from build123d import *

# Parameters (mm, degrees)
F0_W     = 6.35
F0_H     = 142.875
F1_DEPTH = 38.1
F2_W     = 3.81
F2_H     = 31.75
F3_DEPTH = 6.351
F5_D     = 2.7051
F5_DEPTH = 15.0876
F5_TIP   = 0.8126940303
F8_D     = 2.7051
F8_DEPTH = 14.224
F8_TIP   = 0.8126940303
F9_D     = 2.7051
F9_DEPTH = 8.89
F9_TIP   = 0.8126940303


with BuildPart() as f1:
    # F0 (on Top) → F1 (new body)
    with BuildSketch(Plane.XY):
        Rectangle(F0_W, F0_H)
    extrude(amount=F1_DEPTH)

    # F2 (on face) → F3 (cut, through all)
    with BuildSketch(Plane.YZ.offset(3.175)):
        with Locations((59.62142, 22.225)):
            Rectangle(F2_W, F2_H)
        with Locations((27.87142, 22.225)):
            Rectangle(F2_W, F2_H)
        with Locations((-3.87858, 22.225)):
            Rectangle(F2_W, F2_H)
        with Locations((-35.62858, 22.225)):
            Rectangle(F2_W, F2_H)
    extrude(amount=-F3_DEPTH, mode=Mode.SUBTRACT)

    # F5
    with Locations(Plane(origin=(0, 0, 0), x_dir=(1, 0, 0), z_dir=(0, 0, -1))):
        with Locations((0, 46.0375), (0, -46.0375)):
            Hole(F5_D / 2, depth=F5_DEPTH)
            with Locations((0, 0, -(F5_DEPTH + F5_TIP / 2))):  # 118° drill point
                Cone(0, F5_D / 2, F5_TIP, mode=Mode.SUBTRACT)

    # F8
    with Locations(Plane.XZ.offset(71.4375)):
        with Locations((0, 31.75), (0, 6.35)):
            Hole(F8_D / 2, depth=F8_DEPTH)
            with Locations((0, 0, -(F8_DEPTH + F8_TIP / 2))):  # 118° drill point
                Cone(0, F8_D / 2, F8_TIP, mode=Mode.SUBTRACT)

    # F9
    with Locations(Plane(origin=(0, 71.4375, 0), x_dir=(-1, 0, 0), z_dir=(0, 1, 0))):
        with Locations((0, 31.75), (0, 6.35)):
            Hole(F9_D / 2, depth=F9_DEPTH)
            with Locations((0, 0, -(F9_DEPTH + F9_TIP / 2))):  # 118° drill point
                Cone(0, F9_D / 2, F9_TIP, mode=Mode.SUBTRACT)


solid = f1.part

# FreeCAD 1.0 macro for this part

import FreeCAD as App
import Part
import Sketcher
Q = App.Units.Quantity

doc = App.newDocument("Part")
body = doc.addObject("PartDesign::Body", "Body")

sketch1 = body.newObject("Sketcher::SketchObject", "Sketch")
sketch1.AttachmentSupport = (doc.getObject("XY_Plane"), [""])
sketch1.MapMode = "FlatFace"
sketch1.addGeometry(Part.LineSegment(App.Vector(-3, 71, 0), App.Vector(-3, -71, 0)), False)
sketch1.addGeometry(Part.LineSegment(App.Vector(-3, -71, 0), App.Vector(3, -71, 0)), False)
sketch1.addGeometry(Part.LineSegment(App.Vector(3, -71, 0), App.Vector(3, 71, 0)), False)
sketch1.addGeometry(Part.LineSegment(App.Vector(3, 71, 0), App.Vector(-3, 71, 0)), False)
sketch1.addConstraint(Sketcher.Constraint("Coincident", 0, 2, 1, 1))
sketch1.addConstraint(Sketcher.Constraint("Coincident", 1, 2, 2, 1))
sketch1.addConstraint(Sketcher.Constraint("Coincident", 2, 2, 3, 1))
sketch1.addConstraint(Sketcher.Constraint("Coincident", 3, 2, 0, 1))
sketch1.addConstraint(Sketcher.Constraint("Vertical", 0))
sketch1.addConstraint(Sketcher.Constraint("Horizontal", 1))
sketch1.addConstraint(Sketcher.Constraint("Vertical", 2))
sketch1.addConstraint(Sketcher.Constraint("Horizontal", 3))
sketch1.addConstraint(Sketcher.Constraint("Symmetric", 0, 2, 2, 2, -1, 1))
sketch1.addConstraint(Sketcher.Constraint("DistanceX", 1, 1, 1, 2, Q("0.25 in")))
sketch1.addConstraint(Sketcher.Constraint("DistanceY", 0, 2, 0, 1, Q("5.625 in")))
pad1 = body.newObject("PartDesign::Pad", "Pad")
pad1.Profile = sketch1
pad1.Length = Q("1.5 in")

sketch2 = body.newObject("Sketcher::SketchObject", "Sketch001")
sketch2.AttachmentSupport = (doc.getObject("YZ_Plane"), [""])
sketch2.MapMode = "FlatFace"
sketch2.AttachmentOffset = App.Placement(App.Vector(0, 0, 0.125 * 25.4), App.Rotation())
sketch2.addGeometry(Part.LineSegment(App.Vector(57.7, 38.1, 0), App.Vector(57.7, 6.3, 0)), False)
sketch2.addGeometry(Part.LineSegment(App.Vector(57.7, 6.3, 0), App.Vector(61.5, 6.3, 0)), False)
sketch2.addGeometry(Part.LineSegment(App.Vector(61.5, 6.3, 0), App.Vector(61.5, 38.1, 0)), False)
sketch2.addGeometry(Part.LineSegment(App.Vector(61.5, 38.1, 0), App.Vector(57.7, 38.1, 0)), False)
sketch2.addGeometry(Part.LineSegment(App.Vector(26, 38.1, 0), App.Vector(26, 6.3, 0)), False)
sketch2.addGeometry(Part.LineSegment(App.Vector(26, 6.3, 0), App.Vector(29.8, 6.3, 0)), False)
sketch2.addGeometry(Part.LineSegment(App.Vector(29.8, 6.3, 0), App.Vector(29.8, 38.1, 0)), False)
sketch2.addGeometry(Part.LineSegment(App.Vector(29.8, 38.1, 0), App.Vector(26, 38.1, 0)), False)
sketch2.addGeometry(Part.LineSegment(App.Vector(-5.8, 38.1, 0), App.Vector(-5.8, 6.3, 0)), False)
sketch2.addGeometry(Part.LineSegment(App.Vector(-5.8, 6.3, 0), App.Vector(-2, 6.3, 0)), False)
sketch2.addGeometry(Part.LineSegment(App.Vector(-2, 6.3, 0), App.Vector(-2, 38.1, 0)), False)
sketch2.addGeometry(Part.LineSegment(App.Vector(-2, 38.1, 0), App.Vector(-5.8, 38.1, 0)), False)
sketch2.addGeometry(Part.LineSegment(App.Vector(-37.5, 38.1, 0), App.Vector(-37.5, 6.3, 0)), False)
sketch2.addGeometry(Part.LineSegment(App.Vector(-37.5, 6.3, 0), App.Vector(-33.7, 6.3, 0)), False)
sketch2.addGeometry(Part.LineSegment(App.Vector(-33.7, 6.3, 0), App.Vector(-33.7, 38.1, 0)), False)
sketch2.addGeometry(Part.LineSegment(App.Vector(-33.7, 38.1, 0), App.Vector(-37.5, 38.1, 0)), False)
sketch2.addConstraint(Sketcher.Constraint("Coincident", 0, 2, 1, 1))
sketch2.addConstraint(Sketcher.Constraint("Coincident", 1, 2, 2, 1))
sketch2.addConstraint(Sketcher.Constraint("Coincident", 2, 2, 3, 1))
sketch2.addConstraint(Sketcher.Constraint("Coincident", 3, 2, 0, 1))
sketch2.addConstraint(Sketcher.Constraint("Coincident", 4, 2, 5, 1))
sketch2.addConstraint(Sketcher.Constraint("Coincident", 5, 2, 6, 1))
sketch2.addConstraint(Sketcher.Constraint("Coincident", 6, 2, 7, 1))
sketch2.addConstraint(Sketcher.Constraint("Coincident", 7, 2, 4, 1))
sketch2.addConstraint(Sketcher.Constraint("Coincident", 8, 2, 9, 1))
sketch2.addConstraint(Sketcher.Constraint("Coincident", 9, 2, 10, 1))
sketch2.addConstraint(Sketcher.Constraint("Coincident", 10, 2, 11, 1))
sketch2.addConstraint(Sketcher.Constraint("Coincident", 11, 2, 8, 1))
sketch2.addConstraint(Sketcher.Constraint("Coincident", 12, 2, 13, 1))
sketch2.addConstraint(Sketcher.Constraint("Coincident", 13, 2, 14, 1))
sketch2.addConstraint(Sketcher.Constraint("Coincident", 14, 2, 15, 1))
sketch2.addConstraint(Sketcher.Constraint("Coincident", 15, 2, 12, 1))
sketch2.addConstraint(Sketcher.Constraint("Vertical", 0))
sketch2.addConstraint(Sketcher.Constraint("Horizontal", 1))
sketch2.addConstraint(Sketcher.Constraint("Vertical", 2))
sketch2.addConstraint(Sketcher.Constraint("Horizontal", 3))
sketch2.addConstraint(Sketcher.Constraint("Vertical", 4))
sketch2.addConstraint(Sketcher.Constraint("Horizontal", 5))
sketch2.addConstraint(Sketcher.Constraint("Vertical", 6))
sketch2.addConstraint(Sketcher.Constraint("Horizontal", 7))
sketch2.addConstraint(Sketcher.Constraint("Vertical", 8))
sketch2.addConstraint(Sketcher.Constraint("Horizontal", 9))
sketch2.addConstraint(Sketcher.Constraint("Vertical", 10))
sketch2.addConstraint(Sketcher.Constraint("Horizontal", 11))
sketch2.addConstraint(Sketcher.Constraint("Vertical", 12))
sketch2.addConstraint(Sketcher.Constraint("Horizontal", 13))
sketch2.addConstraint(Sketcher.Constraint("Vertical", 14))
sketch2.addConstraint(Sketcher.Constraint("Horizontal", 15))
sketch2.addConstraint(Sketcher.Constraint("Horizontal", 1, 2, 4, 2))
sketch2.addConstraint(Sketcher.Constraint("Horizontal", 3, 2, 6, 2))
sketch2.addConstraint(Sketcher.Constraint("Horizontal", 5, 2, 8, 2))
sketch2.addConstraint(Sketcher.Constraint("Horizontal", 7, 2, 10, 2))
sketch2.addConstraint(Sketcher.Constraint("Horizontal", 9, 2, 12, 2))
sketch2.addConstraint(Sketcher.Constraint("Horizontal", 11, 2, 14, 2))
sketch2.addConstraint(Sketcher.Constraint("Equal", 3, 5))
sketch2.addConstraint(Sketcher.Constraint("Equal", 7, 9))
sketch2.addConstraint(Sketcher.Constraint("Equal", 11, 13))
sketch2.addConstraint(Sketcher.Constraint("DistanceX", 1, 1, 1, 2, Q("0.15 in")))
sketch2.addConstraint(Sketcher.Constraint("DistanceY", 0, 2, 0, 1, Q("1.25 in")))
sketch2.addConstraint(Sketcher.Constraint("DistanceY", -1, 1, 2, 2, Q("1.5 in")))
sketch2.addConstraint(Sketcher.Constraint("DistanceX", 4, 2, 1, 2, Q("1.4 in")))
sketch2.addConstraint(Sketcher.Constraint("DistanceX", 8, 2, 5, 2, Q("1.4 in")))
sketch2.addConstraint(Sketcher.Constraint("DistanceX", 12, 2, 9, 2, Q("1.4 in")))
sketch2.addConstraint(Sketcher.Constraint("DistanceX", -1, 1, 0, 2, Q("2.2723 in")))
pocket1 = body.newObject("PartDesign::Pocket", "Pocket")
pocket1.Profile = sketch2
pocket1.Type = "ThroughAll"

sketch3 = body.newObject("Sketcher::SketchObject", "Sketch002")
sketch3.AttachmentSupport = (doc.getObject("XY_Plane"), [""])
sketch3.MapMode = "FlatFace"
sketch3.addGeometry(Part.Circle(App.Vector(0, -46, 0), App.Vector(0, 0, 1), 1.4), False)
sketch3.addGeometry(Part.Circle(App.Vector(0, 46, 0), App.Vector(0, 0, 1), 1.4), False)
sketch3.addConstraint(Sketcher.Constraint("Equal", 0, 1))
sketch3.addConstraint(Sketcher.Constraint("Symmetric", 0, 3, 1, 3, -1, 1))
sketch3.addConstraint(Sketcher.Constraint("PointOnObject", 0, 3, -2))
sketch3.addConstraint(Sketcher.Constraint("Diameter", 0, Q("0.1065 in")))
sketch3.addConstraint(Sketcher.Constraint("DistanceY", 0, 3, -1, 1, Q("1.8125 in")))
doc.recompute()
hole = body.newObject("PartDesign::Hole", "Hole")
hole.Profile = sketch3
hole.ThreadType = "None"
hole.Diameter = Q("0.1065 in")
hole.DepthType = "Dimension"
hole.Depth = Q("0.594 in")
hole.DrillPoint = "Angled"
hole.DrillPointAngle = 118
hole.Reversed = True

sketch4 = body.newObject("Sketcher::SketchObject", "Sketch003")
sketch4.AttachmentSupport = (doc.getObject("XZ_Plane"), [""])
sketch4.MapMode = "FlatFace"
sketch4.AttachmentOffset = App.Placement(App.Vector(0, 0, 2.8125 * 25.4), App.Rotation())
sketch4.addGeometry(Part.Circle(App.Vector(0, 31.8, 0), App.Vector(0, 0, 1), 1.4), False)
sketch4.addGeometry(Part.Circle(App.Vector(0, 6.3, 0), App.Vector(0, 0, 1), 1.4), False)
sketch4.addConstraint(Sketcher.Constraint("Equal", 0, 1))
sketch4.addConstraint(Sketcher.Constraint("PointOnObject", 0, 3, -2))
sketch4.addConstraint(Sketcher.Constraint("PointOnObject", 1, 3, -2))
sketch4.addConstraint(Sketcher.Constraint("DistanceY", 1, 3, 0, 3, Q("1 in")))
sketch4.addConstraint(Sketcher.Constraint("Diameter", 0, Q("0.1065 in")))
sketch4.addConstraint(Sketcher.Constraint("DistanceY", -1, 1, 0, 3, Q("1.25 in")))
doc.recompute()
hole2 = body.newObject("PartDesign::Hole", "Hole001")
hole2.Profile = sketch4
hole2.ThreadType = "None"
hole2.Diameter = Q("0.1065 in")
hole2.DepthType = "Dimension"
hole2.Depth = Q("0.56 in")
hole2.DrillPoint = "Angled"
hole2.DrillPointAngle = 118

sketch5 = body.newObject("Sketcher::SketchObject", "Sketch004")
sketch5.AttachmentSupport = (doc.getObject("XZ_Plane"), [""])
sketch5.MapMode = "FlatFace"
sketch5.AttachmentOffset = App.Placement(App.Vector(0, 0, -2.8125 * 25.4), App.Rotation())
sketch5.addGeometry(Part.Circle(App.Vector(0, 31.8, 0), App.Vector(0, 0, 1), 1.4), False)
sketch5.addGeometry(Part.Circle(App.Vector(0, 6.3, 0), App.Vector(0, 0, 1), 1.4), False)
sketch5.addConstraint(Sketcher.Constraint("Equal", 0, 1))
sketch5.addConstraint(Sketcher.Constraint("PointOnObject", 0, 3, -2))
sketch5.addConstraint(Sketcher.Constraint("PointOnObject", 1, 3, -2))
sketch5.addConstraint(Sketcher.Constraint("DistanceY", 1, 3, 0, 3, Q("1 in")))
sketch5.addConstraint(Sketcher.Constraint("Diameter", 0, Q("0.1065 in")))
sketch5.addConstraint(Sketcher.Constraint("DistanceY", -1, 1, 0, 3, Q("1.25 in")))
doc.recompute()
hole3 = body.newObject("PartDesign::Hole", "Hole002")
hole3.Profile = sketch5
hole3.ThreadType = "None"
hole3.Diameter = Q("0.1065 in")
hole3.DepthType = "Dimension"
hole3.Depth = Q("0.35 in")
hole3.DrillPoint = "Angled"
hole3.DrillPointAngle = 118
hole3.Reversed = True

doc.recompute()
